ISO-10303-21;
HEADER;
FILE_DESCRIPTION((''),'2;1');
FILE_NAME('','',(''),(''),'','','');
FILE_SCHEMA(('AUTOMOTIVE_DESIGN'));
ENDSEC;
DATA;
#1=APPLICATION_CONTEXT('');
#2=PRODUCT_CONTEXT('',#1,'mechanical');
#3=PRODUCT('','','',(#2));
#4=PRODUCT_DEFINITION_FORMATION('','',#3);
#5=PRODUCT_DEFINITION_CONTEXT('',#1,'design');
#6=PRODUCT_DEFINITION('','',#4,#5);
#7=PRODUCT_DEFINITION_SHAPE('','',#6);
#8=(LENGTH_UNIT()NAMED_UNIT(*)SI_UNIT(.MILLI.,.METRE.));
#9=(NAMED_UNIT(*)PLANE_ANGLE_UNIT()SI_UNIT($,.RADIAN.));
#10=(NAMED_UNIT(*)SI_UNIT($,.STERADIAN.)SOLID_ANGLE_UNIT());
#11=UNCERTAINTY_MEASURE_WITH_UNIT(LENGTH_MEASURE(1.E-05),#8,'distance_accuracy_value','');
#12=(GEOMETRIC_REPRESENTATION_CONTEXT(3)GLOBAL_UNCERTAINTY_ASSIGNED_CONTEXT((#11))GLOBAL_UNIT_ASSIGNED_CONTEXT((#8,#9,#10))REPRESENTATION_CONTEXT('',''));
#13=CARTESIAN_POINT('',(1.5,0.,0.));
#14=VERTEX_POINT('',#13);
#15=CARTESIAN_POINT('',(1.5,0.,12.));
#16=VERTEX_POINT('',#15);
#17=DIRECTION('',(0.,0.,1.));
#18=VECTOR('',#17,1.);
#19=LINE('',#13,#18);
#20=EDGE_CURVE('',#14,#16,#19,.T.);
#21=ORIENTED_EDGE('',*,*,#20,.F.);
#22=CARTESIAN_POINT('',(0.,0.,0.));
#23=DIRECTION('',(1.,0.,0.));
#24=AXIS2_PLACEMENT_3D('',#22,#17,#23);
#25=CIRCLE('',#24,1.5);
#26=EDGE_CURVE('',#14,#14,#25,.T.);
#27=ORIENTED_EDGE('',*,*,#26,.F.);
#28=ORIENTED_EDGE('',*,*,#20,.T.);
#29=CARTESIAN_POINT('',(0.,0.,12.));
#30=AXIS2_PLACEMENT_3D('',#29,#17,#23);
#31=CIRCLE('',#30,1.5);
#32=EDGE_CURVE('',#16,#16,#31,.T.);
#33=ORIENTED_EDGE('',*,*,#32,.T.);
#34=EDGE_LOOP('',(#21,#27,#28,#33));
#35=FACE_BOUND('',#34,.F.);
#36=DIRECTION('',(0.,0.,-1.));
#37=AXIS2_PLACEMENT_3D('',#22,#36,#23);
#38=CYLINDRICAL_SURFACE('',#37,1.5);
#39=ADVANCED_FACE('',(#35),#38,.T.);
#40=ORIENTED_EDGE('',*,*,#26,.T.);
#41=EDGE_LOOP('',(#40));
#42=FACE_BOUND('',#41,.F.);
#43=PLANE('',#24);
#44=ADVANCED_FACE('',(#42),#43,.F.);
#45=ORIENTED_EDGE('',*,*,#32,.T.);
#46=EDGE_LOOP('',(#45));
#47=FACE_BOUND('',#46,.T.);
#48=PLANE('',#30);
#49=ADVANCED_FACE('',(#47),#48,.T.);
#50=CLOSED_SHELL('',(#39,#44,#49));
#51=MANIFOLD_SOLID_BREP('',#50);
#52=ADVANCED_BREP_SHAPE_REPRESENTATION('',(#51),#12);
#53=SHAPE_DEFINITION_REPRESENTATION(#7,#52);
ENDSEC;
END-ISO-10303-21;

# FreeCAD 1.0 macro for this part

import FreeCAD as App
import Part
import Sketcher

V = App.Vector

doc = App.newDocument("Part")
body = doc.addObject("PartDesign::Body", "Body")

sketch1 = body.newObject("Sketcher::SketchObject", "Sketch")
sketch1.AttachmentSupport = (doc.getObject("XY_Plane"), [""])
sketch1.MapMode = "FlatFace"
sketch1.addGeometry(Part.Circle(V(0, 0, 0), V(0, 0, 1), 1.5), False)
sketch1.addConstraint([
    Sketcher.Constraint("Coincident", 0, 3, -1, 1),
    Sketcher.Constraint("Diameter", 0, 3.0),
])
pad1 = body.newObject("PartDesign::Pad", "Pad")
pad1.Profile = sketch1
pad1.Length = 12

doc.recompute()
